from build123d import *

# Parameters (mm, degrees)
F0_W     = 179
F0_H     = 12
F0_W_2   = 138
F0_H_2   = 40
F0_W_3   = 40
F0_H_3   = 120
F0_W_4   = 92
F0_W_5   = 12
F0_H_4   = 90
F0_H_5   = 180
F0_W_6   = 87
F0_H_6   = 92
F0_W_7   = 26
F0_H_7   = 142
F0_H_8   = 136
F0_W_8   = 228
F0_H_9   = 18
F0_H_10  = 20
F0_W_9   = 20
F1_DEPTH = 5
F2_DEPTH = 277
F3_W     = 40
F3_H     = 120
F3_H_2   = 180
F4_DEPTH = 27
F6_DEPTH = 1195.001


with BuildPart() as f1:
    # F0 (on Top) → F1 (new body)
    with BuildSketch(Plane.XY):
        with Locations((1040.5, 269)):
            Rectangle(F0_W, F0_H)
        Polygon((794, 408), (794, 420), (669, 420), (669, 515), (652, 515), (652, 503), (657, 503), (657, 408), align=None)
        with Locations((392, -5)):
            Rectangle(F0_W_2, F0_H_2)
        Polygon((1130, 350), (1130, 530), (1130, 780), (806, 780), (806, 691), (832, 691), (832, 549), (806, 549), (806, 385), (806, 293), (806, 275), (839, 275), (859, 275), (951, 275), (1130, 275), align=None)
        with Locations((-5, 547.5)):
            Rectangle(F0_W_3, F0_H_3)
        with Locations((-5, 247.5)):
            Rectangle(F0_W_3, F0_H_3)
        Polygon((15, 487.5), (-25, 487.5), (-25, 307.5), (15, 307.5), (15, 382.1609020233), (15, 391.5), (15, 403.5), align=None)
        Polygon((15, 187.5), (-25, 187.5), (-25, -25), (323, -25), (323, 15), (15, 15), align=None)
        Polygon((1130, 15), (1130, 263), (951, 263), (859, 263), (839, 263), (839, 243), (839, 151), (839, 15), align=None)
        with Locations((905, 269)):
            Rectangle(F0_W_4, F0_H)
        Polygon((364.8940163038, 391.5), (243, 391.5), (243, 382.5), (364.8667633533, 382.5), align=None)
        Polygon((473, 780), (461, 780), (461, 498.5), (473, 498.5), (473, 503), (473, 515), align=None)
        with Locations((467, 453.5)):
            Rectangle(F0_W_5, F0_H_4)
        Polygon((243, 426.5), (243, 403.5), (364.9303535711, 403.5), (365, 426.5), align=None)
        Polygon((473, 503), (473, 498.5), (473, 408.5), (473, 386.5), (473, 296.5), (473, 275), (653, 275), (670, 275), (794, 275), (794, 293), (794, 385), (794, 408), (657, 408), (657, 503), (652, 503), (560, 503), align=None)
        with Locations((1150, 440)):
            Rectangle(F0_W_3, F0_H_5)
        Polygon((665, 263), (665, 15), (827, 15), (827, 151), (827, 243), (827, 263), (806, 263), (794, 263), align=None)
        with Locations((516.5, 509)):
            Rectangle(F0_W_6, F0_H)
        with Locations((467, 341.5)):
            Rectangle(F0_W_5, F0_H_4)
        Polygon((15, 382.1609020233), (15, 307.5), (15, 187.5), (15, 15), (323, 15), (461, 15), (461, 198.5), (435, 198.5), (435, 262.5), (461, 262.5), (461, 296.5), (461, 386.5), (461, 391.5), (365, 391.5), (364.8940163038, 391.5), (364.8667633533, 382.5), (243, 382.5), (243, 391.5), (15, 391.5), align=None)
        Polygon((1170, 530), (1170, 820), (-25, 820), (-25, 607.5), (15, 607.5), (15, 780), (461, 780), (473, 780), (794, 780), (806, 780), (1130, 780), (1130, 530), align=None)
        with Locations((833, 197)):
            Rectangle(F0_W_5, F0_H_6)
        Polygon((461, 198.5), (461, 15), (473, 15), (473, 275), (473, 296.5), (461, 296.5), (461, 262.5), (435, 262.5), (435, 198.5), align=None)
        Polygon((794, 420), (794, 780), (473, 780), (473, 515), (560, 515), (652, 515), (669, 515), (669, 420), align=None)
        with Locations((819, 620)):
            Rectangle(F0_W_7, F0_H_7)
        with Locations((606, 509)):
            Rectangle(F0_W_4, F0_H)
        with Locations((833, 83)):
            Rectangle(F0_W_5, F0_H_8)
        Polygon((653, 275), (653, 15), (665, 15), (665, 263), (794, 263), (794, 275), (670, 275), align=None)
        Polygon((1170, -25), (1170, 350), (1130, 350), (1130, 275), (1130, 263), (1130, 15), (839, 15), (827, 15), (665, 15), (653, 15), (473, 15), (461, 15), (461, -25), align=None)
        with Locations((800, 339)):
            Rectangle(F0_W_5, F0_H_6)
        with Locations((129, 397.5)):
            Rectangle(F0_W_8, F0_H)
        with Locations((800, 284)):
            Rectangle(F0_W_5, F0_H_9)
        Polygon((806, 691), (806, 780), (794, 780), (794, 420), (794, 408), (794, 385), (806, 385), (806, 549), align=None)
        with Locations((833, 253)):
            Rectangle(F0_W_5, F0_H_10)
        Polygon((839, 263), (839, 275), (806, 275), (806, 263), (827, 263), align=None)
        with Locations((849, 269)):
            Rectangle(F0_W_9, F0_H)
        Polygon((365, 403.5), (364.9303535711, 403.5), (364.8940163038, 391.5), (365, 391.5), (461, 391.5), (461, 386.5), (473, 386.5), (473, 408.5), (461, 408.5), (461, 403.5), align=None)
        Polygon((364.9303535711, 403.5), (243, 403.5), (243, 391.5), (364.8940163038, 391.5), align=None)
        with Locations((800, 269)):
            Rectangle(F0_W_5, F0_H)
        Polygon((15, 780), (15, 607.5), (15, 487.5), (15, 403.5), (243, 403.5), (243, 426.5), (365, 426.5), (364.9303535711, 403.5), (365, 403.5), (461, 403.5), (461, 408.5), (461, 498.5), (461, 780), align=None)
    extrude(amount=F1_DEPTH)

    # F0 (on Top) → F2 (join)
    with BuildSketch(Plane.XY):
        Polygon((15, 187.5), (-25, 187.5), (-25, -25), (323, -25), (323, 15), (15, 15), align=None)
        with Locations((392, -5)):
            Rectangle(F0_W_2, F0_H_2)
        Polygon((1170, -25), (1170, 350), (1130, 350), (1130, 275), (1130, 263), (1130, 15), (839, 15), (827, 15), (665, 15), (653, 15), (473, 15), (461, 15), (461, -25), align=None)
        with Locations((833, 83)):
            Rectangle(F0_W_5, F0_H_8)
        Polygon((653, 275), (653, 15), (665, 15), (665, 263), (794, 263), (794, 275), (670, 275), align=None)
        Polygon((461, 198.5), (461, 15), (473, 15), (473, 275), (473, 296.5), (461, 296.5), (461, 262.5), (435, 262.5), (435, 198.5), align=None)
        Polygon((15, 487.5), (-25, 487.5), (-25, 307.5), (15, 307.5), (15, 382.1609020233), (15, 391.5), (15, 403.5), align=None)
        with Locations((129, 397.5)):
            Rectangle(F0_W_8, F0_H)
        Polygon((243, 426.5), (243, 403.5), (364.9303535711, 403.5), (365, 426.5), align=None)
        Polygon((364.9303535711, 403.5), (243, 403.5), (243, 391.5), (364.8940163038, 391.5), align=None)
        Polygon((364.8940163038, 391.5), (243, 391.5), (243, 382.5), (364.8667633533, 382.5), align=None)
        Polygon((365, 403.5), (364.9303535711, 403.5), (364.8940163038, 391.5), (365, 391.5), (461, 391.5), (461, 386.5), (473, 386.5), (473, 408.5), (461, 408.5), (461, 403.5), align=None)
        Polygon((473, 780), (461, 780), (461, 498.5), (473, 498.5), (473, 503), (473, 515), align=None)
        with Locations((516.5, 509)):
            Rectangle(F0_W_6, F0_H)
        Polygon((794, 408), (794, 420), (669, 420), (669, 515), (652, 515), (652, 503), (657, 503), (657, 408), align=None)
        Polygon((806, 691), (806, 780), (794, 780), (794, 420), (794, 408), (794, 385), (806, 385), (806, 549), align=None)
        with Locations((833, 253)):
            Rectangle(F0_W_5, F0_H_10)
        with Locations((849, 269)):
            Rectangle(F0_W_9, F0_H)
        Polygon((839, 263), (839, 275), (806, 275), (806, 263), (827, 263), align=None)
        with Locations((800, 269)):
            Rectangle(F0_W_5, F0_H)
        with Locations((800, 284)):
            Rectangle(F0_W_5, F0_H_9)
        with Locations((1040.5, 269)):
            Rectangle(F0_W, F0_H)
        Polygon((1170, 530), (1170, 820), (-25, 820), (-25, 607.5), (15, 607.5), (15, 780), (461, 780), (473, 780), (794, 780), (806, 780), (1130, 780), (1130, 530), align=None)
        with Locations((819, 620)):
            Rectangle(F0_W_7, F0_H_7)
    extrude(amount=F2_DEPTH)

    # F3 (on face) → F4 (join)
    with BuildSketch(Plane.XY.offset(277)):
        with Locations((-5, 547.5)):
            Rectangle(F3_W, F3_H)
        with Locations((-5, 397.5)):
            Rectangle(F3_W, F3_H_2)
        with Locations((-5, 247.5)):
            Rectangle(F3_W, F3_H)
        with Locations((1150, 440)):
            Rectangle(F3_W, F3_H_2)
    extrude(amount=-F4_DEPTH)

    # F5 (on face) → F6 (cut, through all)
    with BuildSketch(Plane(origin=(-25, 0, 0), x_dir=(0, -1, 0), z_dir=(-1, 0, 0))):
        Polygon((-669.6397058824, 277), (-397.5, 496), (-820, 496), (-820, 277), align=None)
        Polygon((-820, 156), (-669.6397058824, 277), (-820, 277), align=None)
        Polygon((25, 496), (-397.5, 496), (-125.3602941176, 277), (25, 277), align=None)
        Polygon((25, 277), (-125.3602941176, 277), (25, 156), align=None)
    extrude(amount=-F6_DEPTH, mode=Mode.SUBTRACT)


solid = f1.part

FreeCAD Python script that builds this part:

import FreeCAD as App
import Part
import Sketcher


def add_polygon(sketch, points):
    """Adds a closed chain of lines whose ends are joined by coincident constraints."""
    first, n = sketch.GeometryCount, len(points)
    for a, b in zip(points, points[1:] + points[:1]):
        sketch.addGeometry(Part.LineSegment(App.Vector(*a, 0), App.Vector(*b, 0)), False)
    for i in range(n):
        sketch.addConstraint(Sketcher.Constraint("Coincident", first + i, 2, first + (i + 1) % n, 1))

doc = App.newDocument("Part")
params = doc.addObject("Spreadsheet::Sheet", "Params")
for row, (alias, value) in enumerate([
    ("sketch1_width", "1195 mm"),
    ("sketch1_width2", "180 mm"),
    ("sketch1_height", "845 mm"),
    ("sketch1_height2", "260 mm"),
    ("pad1_length", "5 mm"),
    ("sketch2_width", "40 mm"),
    ("sketch2_width2", "1195 mm"),
    ("sketch2_width3", "179 mm"),
    ("sketch2_width4", "291 mm"),
    ("sketch2_width5", "12 mm"),
    ("pad2_length", "277 mm"),
    ("sketch3_width", "40 mm"),
    ("sketch3_height", "420 mm"),
    ("sketch3_height2", "180 mm"),
    ("pad3_length", "27 mm"),
    ("sketch4_height", "340 mm"),
    ("sketch4_width", "422.5 mm"),
], start=1):
    params.set(f"A{row}", alias)
    params.set(f"B{row}", "=" + value)
    params.setAlias(f"B{row}", alias)

body = doc.addObject("PartDesign::Body", "Body")

# Sketch on XY plane
sketch1 = body.newObject("Sketcher::SketchObject", "Sketch")
sketch1.AttachmentSupport = (doc.getObject("XY_Plane"), [""])
sketch1.MapMode = "FlatFace"
add_polygon(sketch1, [(1170, 820), (-25, 820), (-25, -25), (1170, -25)])  # lines 0-3
add_polygon(sketch1, [(473, 15), (473, 275), (653, 275), (653, 15)])  # lines 4-7
sketch1.addConstraint([
    Sketcher.Constraint("Horizontal", 0),
    Sketcher.Constraint("Vertical", 1),
    Sketcher.Constraint("Horizontal", 2),
    Sketcher.Constraint("Vertical", 3),
    Sketcher.Constraint("Vertical", 4),
    Sketcher.Constraint("Horizontal", 5),
    Sketcher.Constraint("Vertical", 6),
    Sketcher.Constraint("Horizontal", 7),
    Sketcher.Constraint("DistanceX", 0, 2, 0, 1, 1195.0),
    Sketcher.Constraint("DistanceX", 5, 1, 5, 2, 180.0),
    Sketcher.Constraint("DistanceY", 1, 2, 1, 1, 845.0),
    Sketcher.Constraint("DistanceY", 4, 1, 4, 2, 260.0),
    Sketcher.Constraint("DistanceX", 0, 2, -1, 1, 25.0),
    Sketcher.Constraint("DistanceY", -1, 1, 0, 2, 820.0),
    Sketcher.Constraint("DistanceX", -1, 1, 4, 2, 473.0),
    Sketcher.Constraint("DistanceY", -1, 1, 4, 2, 275.0),
])
sketch1.setExpression("Constraints[16]", "Params.sketch1_width")
sketch1.setExpression("Constraints[17]", "Params.sketch1_width2")
sketch1.setExpression("Constraints[18]", "Params.sketch1_height")
sketch1.setExpression("Constraints[19]", "Params.sketch1_height2")
pad1 = body.newObject("PartDesign::Pad", "Pad")
pad1.Profile = sketch1
pad1.setExpression("Length", "Params.pad1_length")

# Sketch on XY plane
sketch2 = body.newObject("Sketcher::SketchObject", "Sketch001")
sketch2.AttachmentSupport = (doc.getObject("XY_Plane"), [""])
sketch2.MapMode = "FlatFace"
add_polygon(sketch2, [(15, 187.5), (-25, 187.5), (-25, -25), (1170, -25), (1170, 350), (1130, 350), (1130, 275), (951, 275), (951, 263), (1130, 263), (1130, 15), (839, 15), (839, 151), (827, 151), (827, 15), (665, 15), (665, 263), (827, 263), (827, 243), (839, 243), (839, 263), (859, 263), (859, 275), (806, 275), (806, 293), (794, 293), (794, 275), (653, 275), (653, 15), (473, 15), (473, 296.5), (461, 296.5), (461, 262.5), (435, 262.5), (435, 198.5), (461, 198.5), (461, 15), (15, 15)])  # lines 0-37
add_polygon(sketch2, [(15, 487.5), (-25, 487.5), (-25, 307.5), (15, 307.5), (15, 391.5), (243, 391.5), (243, 382.5), (364.9, 382.5), (364.9, 391.5), (461, 391.5), (461, 386.5), (473, 386.5), (473, 408.5), (461, 408.5), (461, 403.5), (364.9, 403.5), (365, 426.5), (243, 426.5), (243, 403.5), (15, 403.5)])  # lines 38-57
add_polygon(sketch2, [(461, 780), (461, 498.5), (473, 498.5), (473, 503), (560, 503), (560, 515), (473, 515), (473, 780), (794, 780), (794, 420), (669, 420), (669, 515), (652, 515), (652, 503), (657, 503), (657, 408), (794, 408), (794, 385), (806, 385), (806, 549), (832, 549), (832, 691), (806, 691), (806, 780), (1130, 780), (1130, 530), (1170, 530), (1170, 820), (-25, 820), (-25, 607.5), (15, 607.5), (15, 780)])  # lines 58-89
sketch2.addConstraint([
    Sketcher.Constraint("Horizontal", 0),
    Sketcher.Constraint("Vertical", 1),
    Sketcher.Constraint("Horizontal", 2),
    Sketcher.Constraint("Vertical", 3),
    Sketcher.Constraint("Horizontal", 4),
    Sketcher.Constraint("Vertical", 5),
    Sketcher.Constraint("Horizontal", 6),
    Sketcher.Constraint("Vertical", 7),
    Sketcher.Constraint("Horizontal", 8),
    Sketcher.Constraint("Vertical", 9),
    Sketcher.Constraint("Horizontal", 10),
    Sketcher.Constraint("Vertical", 11),
    Sketcher.Constraint("Horizontal", 12),
    Sketcher.Constraint("Vertical", 13),
    Sketcher.Constraint("Horizontal", 14),
    Sketcher.Constraint("Vertical", 15),
    Sketcher.Constraint("Horizontal", 16),
    Sketcher.Constraint("Vertical", 17),
    Sketcher.Constraint("Horizontal", 18),
    Sketcher.Constraint("Vertical", 19),
    Sketcher.Constraint("Horizontal", 20),
    Sketcher.Constraint("Vertical", 21),
    Sketcher.Constraint("Horizontal", 22),
    Sketcher.Constraint("Vertical", 23),
    Sketcher.Constraint("Horizontal", 24),
    Sketcher.Constraint("Vertical", 25),
    Sketcher.Constraint("Horizontal", 26),
    Sketcher.Constraint("Vertical", 27),
    Sketcher.Constraint("Horizontal", 28),
    Sketcher.Constraint("Vertical", 29),
    Sketcher.Constraint("Horizontal", 30),
    Sketcher.Constraint("Vertical", 31),
    Sketcher.Constraint("Horizontal", 32),
    Sketcher.Constraint("Vertical", 33),
    Sketcher.Constraint("Horizontal", 34),
    Sketcher.Constraint("Vertical", 35),
    Sketcher.Constraint("Horizontal", 36),
    Sketcher.Constraint("Vertical", 37),
    Sketcher.Constraint("Horizontal", 38),
    Sketcher.Constraint("Vertical", 39),
    Sketcher.Constraint("Horizontal", 40),
    Sketcher.Constraint("Vertical", 41),
    Sketcher.Constraint("Horizontal", 42),
    Sketcher.Constraint("Vertical", 43),
    Sketcher.Constraint("Horizontal", 44),
    Sketcher.Constraint("Horizontal", 46),
    Sketcher.Constraint("Vertical", 47),
    Sketcher.Constraint("Horizontal", 48),
    Sketcher.Constraint("Vertical", 49),
    Sketcher.Constraint("Horizontal", 50),
    Sketcher.Constraint("Vertical", 51),
    Sketcher.Constraint("Horizontal", 52),
    Sketcher.Constraint("Horizontal", 54),
    Sketcher.Constraint("Vertical", 55),
    Sketcher.Constraint("Horizontal", 56),
    Sketcher.Constraint("Vertical", 57),
    Sketcher.Constraint("Vertical", 58),
    Sketcher.Constraint("Horizontal", 59),
    Sketcher.Constraint("Vertical", 60),
    Sketcher.Constraint("Horizontal", 61),
    Sketcher.Constraint("Vertical", 62),
    Sketcher.Constraint("Horizontal", 63),
    Sketcher.Constraint("Vertical", 64),
    Sketcher.Constraint("Horizontal", 65),
    Sketcher.Constraint("Vertical", 66),
    Sketcher.Constraint("Horizontal", 67),
    Sketcher.Constraint("Vertical", 68),
    Sketcher.Constraint("Horizontal", 69),
    Sketcher.Constraint("Vertical", 70),
    Sketcher.Constraint("Horizontal", 71),
    Sketcher.Constraint("Vertical", 72),
    Sketcher.Constraint("Horizontal", 73),
    Sketcher.Constraint("Vertical", 74),
    Sketcher.Constraint("Horizontal", 75),
    Sketcher.Constraint("Vertical", 76),
    Sketcher.Constraint("Horizontal", 77),
    Sketcher.Constraint("Vertical", 78),
    Sketcher.Constraint("Horizontal", 79),
    Sketcher.Constraint("Vertical", 80),
    Sketcher.Constraint("Horizontal", 81),
    Sketcher.Constraint("Vertical", 82),
    Sketcher.Constraint("Horizontal", 83),
    Sketcher.Constraint("Vertical", 84),
    Sketcher.Constraint("Horizontal", 85),
    Sketcher.Constraint("Vertical", 86),
    Sketcher.Constraint("Horizontal", 87),
    Sketcher.Constraint("Vertical", 88),
    Sketcher.Constraint("Horizontal", 89),
    Sketcher.Constraint("Parallel", 45, 53),
    Sketcher.Constraint("Horizontal", 10, 2, 13, 2),
    Sketcher.Constraint("Horizontal", 8, 2, 15, 2),
    Sketcher.Constraint("Horizontal", 16, 2, 19, 2),
    Sketcher.Constraint("Horizontal", 6, 2, 21, 2),
    Sketcher.Constraint("Horizontal", 22, 2, 25, 2),
    Sketcher.Constraint("Horizontal", 14, 2, 27, 2),
    Sketcher.Constraint("Horizontal", 28, 2, 35, 2),
    Sketcher.Constraint("Horizontal", 42, 2, 45, 2),
    Sketcher.Constraint("Horizontal", 52, 2, 55, 2),
    Sketcher.Constraint("Horizontal", 63, 2, 68, 2),
    Sketcher.Constraint("Horizontal", 61, 2, 70, 2),
    Sketcher.Constraint("Horizontal", 65, 2, 80, 2),
    Sketcher.Constraint("Horizontal", 81, 2, 88, 2),
    Sketcher.Constraint("Vertical", 5, 2, 8, 2),
    Sketcher.Constraint("Vertical", 13, 2, 16, 2),
    Sketcher.Constraint("Vertical", 11, 2, 18, 2),
    Sketcher.Constraint("Vertical", 31, 2, 34, 2),
    Sketcher.Constraint("Vertical", 1, 2, 38, 2),
    Sketcher.Constraint("Vertical", 37, 2, 40, 2),
    Sketcher.Constraint("Vertical", 35, 2, 46, 2),
    Sketcher.Constraint("Vertical", 29, 2, 48, 2),
    Sketcher.Constraint("Vertical", 47, 2, 50, 2),
    Sketcher.Constraint("Vertical", 43, 2, 54, 2),
    Sketcher.Constraint("Vertical", 41, 2, 56, 2),
    Sketcher.Constraint("Vertical", 51, 2, 58, 2),
    Sketcher.Constraint("Vertical", 49, 2, 59, 2),
    Sketcher.Constraint("Vertical", 60, 2, 63, 2),
    Sketcher.Constraint("Vertical", 25, 2, 65, 2),
    Sketcher.Constraint("Vertical", 66, 2, 73, 2),
    Sketcher.Constraint("Vertical", 23, 2, 75, 2),
    Sketcher.Constraint("Vertical", 76, 2, 79, 2),
    Sketcher.Constraint("Vertical", 9, 2, 81, 2),
    Sketcher.Constraint("Vertical", 3, 2, 83, 2),
    Sketcher.Constraint("Vertical", 39, 2, 85, 2),
    Sketcher.Constraint("Vertical", 57, 2, 87, 2),
    Sketcher.Constraint("Equal", 0, 4),
    Sketcher.Constraint("Equal", 18, 24),
    Sketcher.Constraint("Equal", 24, 30),
    Sketcher.Constraint("Equal", 34, 77),
    Sketcher.Constraint("Equal", 75, 7),
    Sketcher.Constraint("Equal", 20, 17),
    Sketcher.Constraint("Equal", 28, 39),
    Sketcher.Constraint("Equal", 71, 47),
    Sketcher.Constraint("Equal", 47, 51),
    Sketcher.Constraint("Equal", 41, 57),
    Sketcher.Constraint("Equal", 29, 58),
    Sketcher.Constraint("Equal", 21, 62),
    Sketcher.Constraint("Equal", 68, 72),
    Sketcher.Constraint("Equal", 55, 74),
    Sketcher.Constraint("Equal", 1, 86),
    Sketcher.Constraint("Equal", 37, 88),
    Sketcher.Constraint("DistanceX", 0, 2, 0, 1, 40.0),
    Sketcher.Constraint("DistanceX", 2, 1, 2, 2, 1195.0),
    Sketcher.Constraint("DistanceX", 6, 2, 6, 1, 179.0),
    Sketcher.Constraint("DistanceX", 10, 2, 10, 1, 291.0),
    Sketcher.Constraint("DistanceX", 12, 2, 12, 1, 12.0),
    Sketcher.Constraint("DistanceX", 14, 2, 14, 1, 162.0),
    Sketcher.Constraint("DistanceX", 20, 1, 20, 2, 20.0),
    Sketcher.Constraint("DistanceX", 22, 2, 22, 1, 53.0),
    Sketcher.Constraint("DistanceX", 26, 2, 26, 1, 141.0),
    Sketcher.Constraint("DistanceX", 28, 2, 28, 1, 180.0),
    Sketcher.Constraint("DistanceX", 32, 2, 32, 1, 26.0),
    Sketcher.Constraint("DistanceX", 42, 1, 42, 2, 228.0),
    Sketcher.Constraint("DistanceX", 54, 2, 54, 1, 122.0),
    Sketcher.Constraint("DistanceX", 61, 1, 61, 2, 87.0),
    Sketcher.Constraint("DistanceX", 67, 2, 67, 1, 125.0),
    Sketcher.Constraint("DistanceX", 69, 2, 69, 1, 17.0),
    Sketcher.Constraint("DistanceX", 71, 1, 71, 2, 5.0),
    Sketcher.Constraint("DistanceY", 3, 1, 3, 2, 375.0),
    Sketcher.Constraint("DistanceY", 5, 2, 5, 1, 75.0),
    Sketcher.Constraint("DistanceY", 9, 2, 9, 1, 248.0),
    Sketcher.Constraint("DistanceY", 11, 1, 11, 2, 136.0),
    Sketcher.Constraint("DistanceY", 23, 1, 23, 2, 18.0),
    Sketcher.Constraint("DistanceY", 31, 2, 31, 1, 34.0),
    Sketcher.Constraint("DistanceY", 33, 2, 33, 1, 64.0),
    Sketcher.Constraint("DistanceY", 41, 1, 41, 2, 84.0),
    Sketcher.Constraint("DistanceY", 43, 2, 43, 1, 9.0),
    Sketcher.Constraint("DistanceY", 55, 2, 55, 1, 23.0),
    Sketcher.Constraint("DistanceY", 64, 1, 64, 2, 265.0),
    Sketcher.Constraint("DistanceY", 66, 2, 66, 1, 360.0),
    Sketcher.Constraint("DistanceY", 76, 1, 76, 2, 164.0),
    Sketcher.Constraint("DistanceY", 78, 1, 78, 2, 142.0),
    Sketcher.Constraint("DistanceY", 82, 2, 82, 1, 250.0),
    Sketcher.Constraint("DistanceY", 1, 2, 1, 1, 212.5),
    Sketcher.Constraint("DistanceY", 29, 1, 29, 2, 281.5),
    Sketcher.Constraint("DistanceX", 0, 2, -1, 1, 25.0),
    Sketcher.Constraint("DistanceY", 1, 2, -1, 1, 25.0),
    Sketcher.Constraint("DistanceY", -1, 1, 60, 2, 503.0),
    Sketcher.Constraint("DistanceY", -1, 1, 38, 2, 487.5),
    Sketcher.Constraint("DistanceX", 44, 1, 44, 2, 121.866763),
    Sketcher.Constraint("DistanceX", 46, 1, 46, 2, 96.105984),
])
sketch2.setExpression("Constraints[230]", "Params.sketch2_width")
sketch2.setExpression("Constraints[231]", "Params.sketch2_width2")
sketch2.setExpression("Constraints[232]", "Params.sketch2_width3")
sketch2.setExpression("Constraints[233]", "Params.sketch2_width4")
sketch2.setExpression("Constraints[234]", "Params.sketch2_width5")
pad2 = body.newObject("PartDesign::Pad", "Pad001")
pad2.Profile = sketch2
pad2.setExpression("Length", "Params.pad2_length")

# Sketch on XY plane
sketch3 = body.newObject("Sketcher::SketchObject", "Sketch002")
sketch3.AttachmentSupport = (doc.getObject("XY_Plane"), [""])
sketch3.MapMode = "FlatFace"
sketch3.AttachmentOffset = App.Placement(App.Vector(0, 0, 277), App.Rotation())
add_polygon(sketch3, [(-25, 608), (-25, 188), (15, 188), (15, 608)])  # lines 0-3
add_polygon(sketch3, [(1130, 530), (1130, 350), (1170, 350), (1170, 530)])  # lines 4-7
sketch3.addConstraint([
    Sketcher.Constraint("Vertical", 0),
    Sketcher.Constraint("Horizontal", 1),
    Sketcher.Constraint("Vertical", 2),
    Sketcher.Constraint("Horizontal", 3),
    Sketcher.Constraint("Vertical", 4),
    Sketcher.Constraint("Horizontal", 5),
    Sketcher.Constraint("Vertical", 6),
    Sketcher.Constraint("Horizontal", 7),
    Sketcher.Constraint("Equal", 3, 5),
    Sketcher.Constraint("DistanceX", 1, 1, 1, 2, 40.0),
    Sketcher.Constraint("DistanceY", 0, 2, 0, 1, 420.0),
    Sketcher.Constraint("DistanceY", 4, 2, 4, 1, 180.0),
    Sketcher.Constraint("DistanceX", 0, 2, -1, 1, 25.0),
    Sketcher.Constraint("DistanceX", -1, 1, 4, 2, 1130.0),
    Sketcher.Constraint("DistanceY", -1, 1, 4, 2, 350.0),
    Sketcher.Constraint("DistanceY", -1, 1, 0, 2, 187.5),
])
sketch3.setExpression("Constraints[17]", "Params.sketch3_width")
sketch3.setExpression("Constraints[18]", "Params.sketch3_height")
sketch3.setExpression("Constraints[19]", "Params.sketch3_height2")
pad3 = body.newObject("PartDesign::Pad", "Pad002")
pad3.Profile = sketch3
pad3.setExpression("Length", "Params.pad3_length")
pad3.Reversed = True

# Sketch on YZ plane
sketch4 = body.newObject("Sketcher::SketchObject", "Sketch003")
sketch4.AttachmentSupport = (doc.getObject("YZ_Plane"), [""])
sketch4.MapMode = "FlatFace"
sketch4.AttachmentOffset = App.Placement(App.Vector(0, 0, -25), App.Rotation())
add_polygon(sketch4, [(398, 496), (820, 496), (820, 156)])  # lines 0-2
add_polygon(sketch4, [(-25, 496), (398, 496), (-25, 156)])  # lines 3-5
sketch4.addConstraint([
    Sketcher.Constraint("Horizontal", 0),
    Sketcher.Constraint("Vertical", 1),
    Sketcher.Constraint("Horizontal", 3),
    Sketcher.Constraint("Vertical", 5),
    Sketcher.Constraint("Coincident", 3, 2, 2, 2),
    Sketcher.Constraint("Horizontal", 1, 2, 4, 2),
    Sketcher.Constraint("Equal", 0, 3),
    Sketcher.Constraint("DistanceY", 1, 2, 1, 1, 340.0),
    Sketcher.Constraint("DistanceX", 0, 1, 0, 2, 422.5),
    Sketcher.Constraint("DistanceX", -1, 1, 0, 2, 820.0),
    Sketcher.Constraint("DistanceY", -1, 1, 0, 2, 496.0),
])
sketch4.setExpression("Constraints[13]", "Params.sketch4_height")
sketch4.setExpression("Constraints[14]", "Params.sketch4_width")
pocket1 = body.newObject("PartDesign::Pocket", "Pocket")
pocket1.Profile = sketch4
pocket1.Type = "ThroughAll"
pocket1.Reversed = True

doc.recompute()
